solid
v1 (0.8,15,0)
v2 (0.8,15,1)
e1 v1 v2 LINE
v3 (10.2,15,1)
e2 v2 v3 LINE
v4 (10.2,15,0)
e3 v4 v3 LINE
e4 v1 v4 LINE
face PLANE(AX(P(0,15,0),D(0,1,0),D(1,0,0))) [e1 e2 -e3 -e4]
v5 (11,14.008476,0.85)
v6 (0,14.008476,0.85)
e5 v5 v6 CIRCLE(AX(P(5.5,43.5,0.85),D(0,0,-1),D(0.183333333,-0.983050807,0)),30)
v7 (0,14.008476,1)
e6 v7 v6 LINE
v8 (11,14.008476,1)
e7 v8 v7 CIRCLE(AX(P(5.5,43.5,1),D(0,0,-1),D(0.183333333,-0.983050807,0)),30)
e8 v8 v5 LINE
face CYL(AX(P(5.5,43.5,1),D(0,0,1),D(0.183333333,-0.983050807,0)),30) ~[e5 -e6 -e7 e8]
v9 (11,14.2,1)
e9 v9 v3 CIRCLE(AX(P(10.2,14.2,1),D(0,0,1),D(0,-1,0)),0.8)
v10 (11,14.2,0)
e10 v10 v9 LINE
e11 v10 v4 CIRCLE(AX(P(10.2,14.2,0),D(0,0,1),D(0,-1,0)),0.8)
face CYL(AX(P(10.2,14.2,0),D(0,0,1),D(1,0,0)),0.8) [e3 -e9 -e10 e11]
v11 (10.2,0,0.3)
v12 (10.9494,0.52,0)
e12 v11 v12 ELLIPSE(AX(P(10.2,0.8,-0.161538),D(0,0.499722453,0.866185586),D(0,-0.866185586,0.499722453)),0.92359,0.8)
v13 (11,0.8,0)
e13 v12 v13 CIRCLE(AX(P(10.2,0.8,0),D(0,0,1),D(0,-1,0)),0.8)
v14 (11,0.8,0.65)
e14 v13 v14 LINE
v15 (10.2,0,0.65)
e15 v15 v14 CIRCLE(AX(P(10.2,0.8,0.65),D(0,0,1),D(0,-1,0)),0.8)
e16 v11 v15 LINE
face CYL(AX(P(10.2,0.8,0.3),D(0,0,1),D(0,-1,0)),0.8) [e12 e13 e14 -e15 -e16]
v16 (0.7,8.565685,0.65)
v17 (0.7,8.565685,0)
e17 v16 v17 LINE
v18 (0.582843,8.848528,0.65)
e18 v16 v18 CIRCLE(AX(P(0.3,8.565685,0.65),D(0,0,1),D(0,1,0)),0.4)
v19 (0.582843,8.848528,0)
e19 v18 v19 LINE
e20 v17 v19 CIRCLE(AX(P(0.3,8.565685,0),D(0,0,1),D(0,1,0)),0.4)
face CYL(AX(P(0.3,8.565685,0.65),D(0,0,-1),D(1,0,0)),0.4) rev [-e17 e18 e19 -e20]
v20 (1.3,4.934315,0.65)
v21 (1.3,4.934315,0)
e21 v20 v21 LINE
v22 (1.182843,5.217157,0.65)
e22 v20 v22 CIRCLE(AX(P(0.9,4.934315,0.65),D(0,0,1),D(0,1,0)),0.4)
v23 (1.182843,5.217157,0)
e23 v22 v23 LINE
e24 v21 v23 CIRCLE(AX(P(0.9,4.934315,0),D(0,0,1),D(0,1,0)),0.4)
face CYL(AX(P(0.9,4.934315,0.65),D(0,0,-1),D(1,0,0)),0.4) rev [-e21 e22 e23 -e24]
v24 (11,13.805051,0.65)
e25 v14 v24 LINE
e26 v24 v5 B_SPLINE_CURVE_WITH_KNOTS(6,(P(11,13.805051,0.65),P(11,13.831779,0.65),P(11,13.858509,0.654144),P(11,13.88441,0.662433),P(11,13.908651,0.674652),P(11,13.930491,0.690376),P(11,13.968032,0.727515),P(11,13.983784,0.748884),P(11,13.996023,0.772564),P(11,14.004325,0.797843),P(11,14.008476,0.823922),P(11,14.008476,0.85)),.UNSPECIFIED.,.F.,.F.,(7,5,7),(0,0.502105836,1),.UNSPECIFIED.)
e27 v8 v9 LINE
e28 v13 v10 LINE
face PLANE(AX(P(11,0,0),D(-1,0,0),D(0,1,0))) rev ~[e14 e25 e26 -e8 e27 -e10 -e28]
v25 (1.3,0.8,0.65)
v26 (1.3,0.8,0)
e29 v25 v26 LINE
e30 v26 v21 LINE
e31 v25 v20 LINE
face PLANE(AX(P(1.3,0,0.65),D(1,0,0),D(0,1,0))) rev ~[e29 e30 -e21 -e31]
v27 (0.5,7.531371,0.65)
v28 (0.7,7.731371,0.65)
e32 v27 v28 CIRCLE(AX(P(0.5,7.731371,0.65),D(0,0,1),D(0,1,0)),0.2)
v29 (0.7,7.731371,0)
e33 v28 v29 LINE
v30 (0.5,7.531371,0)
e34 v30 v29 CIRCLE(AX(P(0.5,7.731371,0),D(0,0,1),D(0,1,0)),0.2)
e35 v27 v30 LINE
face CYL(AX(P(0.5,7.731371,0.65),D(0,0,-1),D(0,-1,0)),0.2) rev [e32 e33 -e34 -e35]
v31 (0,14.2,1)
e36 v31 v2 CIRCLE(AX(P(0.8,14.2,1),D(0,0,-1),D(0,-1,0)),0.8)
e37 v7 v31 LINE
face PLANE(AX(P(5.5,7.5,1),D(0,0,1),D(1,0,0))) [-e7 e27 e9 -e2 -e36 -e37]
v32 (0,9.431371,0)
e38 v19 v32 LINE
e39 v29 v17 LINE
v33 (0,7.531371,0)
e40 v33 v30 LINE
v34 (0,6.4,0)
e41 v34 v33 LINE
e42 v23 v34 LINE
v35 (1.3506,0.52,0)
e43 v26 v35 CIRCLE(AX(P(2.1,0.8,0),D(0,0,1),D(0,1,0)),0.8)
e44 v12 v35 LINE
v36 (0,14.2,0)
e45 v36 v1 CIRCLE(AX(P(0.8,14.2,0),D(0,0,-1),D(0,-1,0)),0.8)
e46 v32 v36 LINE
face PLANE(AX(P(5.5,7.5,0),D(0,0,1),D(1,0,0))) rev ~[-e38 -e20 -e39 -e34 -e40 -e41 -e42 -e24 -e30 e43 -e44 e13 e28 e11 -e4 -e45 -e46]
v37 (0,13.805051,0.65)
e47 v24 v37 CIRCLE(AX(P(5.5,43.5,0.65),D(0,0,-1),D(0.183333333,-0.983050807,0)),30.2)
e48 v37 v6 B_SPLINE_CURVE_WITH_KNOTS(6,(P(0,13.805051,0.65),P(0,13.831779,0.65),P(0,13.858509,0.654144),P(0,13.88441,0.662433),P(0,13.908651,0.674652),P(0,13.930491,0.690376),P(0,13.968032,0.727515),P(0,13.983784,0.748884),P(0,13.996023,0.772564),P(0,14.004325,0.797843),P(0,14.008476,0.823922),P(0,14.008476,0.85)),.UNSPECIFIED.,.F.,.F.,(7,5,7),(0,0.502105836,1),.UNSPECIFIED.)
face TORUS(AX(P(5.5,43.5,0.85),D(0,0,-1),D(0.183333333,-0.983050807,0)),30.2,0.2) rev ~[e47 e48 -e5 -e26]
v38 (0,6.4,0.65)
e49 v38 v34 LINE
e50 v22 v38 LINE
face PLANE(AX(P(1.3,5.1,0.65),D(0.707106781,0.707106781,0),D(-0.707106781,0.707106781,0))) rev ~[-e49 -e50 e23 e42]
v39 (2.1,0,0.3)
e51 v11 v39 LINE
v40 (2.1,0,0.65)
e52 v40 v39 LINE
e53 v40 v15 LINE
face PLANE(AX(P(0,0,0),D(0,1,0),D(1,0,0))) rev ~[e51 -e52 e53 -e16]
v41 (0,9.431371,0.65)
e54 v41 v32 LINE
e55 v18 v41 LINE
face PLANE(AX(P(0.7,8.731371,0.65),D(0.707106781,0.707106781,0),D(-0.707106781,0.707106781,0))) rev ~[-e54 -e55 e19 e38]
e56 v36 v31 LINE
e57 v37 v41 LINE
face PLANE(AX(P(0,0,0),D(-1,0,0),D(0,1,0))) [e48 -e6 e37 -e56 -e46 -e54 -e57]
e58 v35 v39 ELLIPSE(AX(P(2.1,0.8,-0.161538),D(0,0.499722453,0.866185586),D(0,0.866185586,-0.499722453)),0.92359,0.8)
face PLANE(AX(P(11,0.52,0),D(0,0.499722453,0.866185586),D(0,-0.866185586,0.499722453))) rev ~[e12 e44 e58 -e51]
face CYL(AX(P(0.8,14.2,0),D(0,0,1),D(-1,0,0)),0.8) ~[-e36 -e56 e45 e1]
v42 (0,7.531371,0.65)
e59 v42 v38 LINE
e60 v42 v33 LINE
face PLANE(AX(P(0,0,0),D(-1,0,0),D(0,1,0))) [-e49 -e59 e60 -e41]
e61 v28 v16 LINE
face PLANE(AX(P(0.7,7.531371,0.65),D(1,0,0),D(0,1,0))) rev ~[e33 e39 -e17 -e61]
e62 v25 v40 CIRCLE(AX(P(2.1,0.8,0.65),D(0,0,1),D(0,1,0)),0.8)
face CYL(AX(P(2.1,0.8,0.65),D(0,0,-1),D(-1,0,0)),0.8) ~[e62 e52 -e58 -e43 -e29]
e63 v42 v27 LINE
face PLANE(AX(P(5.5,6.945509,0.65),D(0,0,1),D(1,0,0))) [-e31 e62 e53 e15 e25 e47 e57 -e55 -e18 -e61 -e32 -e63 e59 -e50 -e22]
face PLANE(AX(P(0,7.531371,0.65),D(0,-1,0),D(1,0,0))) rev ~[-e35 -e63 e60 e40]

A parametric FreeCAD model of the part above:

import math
import FreeCAD as App
import Part
import Sketcher

V = App.Vector
Q = App.Units.Quantity


def edges_at(feature, points):
    """Names of the edges that pass closest to the given points."""
    edges = feature.Shape.Edges
    near = lambda p: min(range(len(edges)), key=lambda i: edges[i].distToShape(Part.Vertex(*p))[0])
    return sorted({f"Edge{near(p) + 1}" for p in points})

doc = App.newDocument("Part")
params = doc.addObject("Spreadsheet::Sheet", "Params")
for row, (alias, value) in enumerate([
    ("sketch1_width", "11 mm"),
    ("sketch1_height", "15 mm"),
    ("pad1_length", "1 mm"),
    ("sketch2_radius", "30 mm"),
    ("sketch2_width", "11 mm"),
    ("pocket1_length", "0.35 mm"),
    ("sketch3_width", "1.3 mm"),
    ("sketch3_width2", "0.7 mm"),
    ("sketch3_height", "5.1 mm"),
    ("sketch3_height2", "1.9 mm"),
    ("fillet_radius", "0.2 mm"),
    ("fillet2_radius", "0.4 mm"),
    ("fillet3_radius", "0.2 mm"),
    ("fillet4_radius", "0.4 mm"),
    ("sketch4_height", "0.3 mm"),
    ("sketch4_width", "0.52 mm"),
    ("fillet5_radius", "0.8 mm"),
], start=1):
    params.set(f"A{row}", alias)
    params.set(f"B{row}", "=" + value)
    params.setAlias(f"B{row}", alias)

body = doc.addObject("PartDesign::Body", "Body")

# Sketch on XY plane
sketch1 = doc.addObject("Sketcher::SketchObject", "Sketch")
body.addObject(sketch1)
sketch1.AttachmentSupport = (doc.XY_Plane, [""])
sketch1.MapMode = "FlatFace"
sketch1.addGeometry([
    Part.LineSegment(V(0, 15, 0), V(0, 0, 0)),
    Part.LineSegment(V(0, 0, 0), V(11, 0, 0)),
    Part.LineSegment(V(11, 0, 0), V(11, 15, 0)),
    Part.LineSegment(V(11, 15, 0), V(0, 15, 0)),
], False)
sketch1.addConstraint([
    Sketcher.Constraint("Coincident", 0, 2, 1, 1),
    Sketcher.Constraint("Coincident", 1, 2, 2, 1),
    Sketcher.Constraint("Coincident", 2, 2, 3, 1),
    Sketcher.Constraint("Coincident", 3, 2, 0, 1),
    Sketcher.Constraint("Vertical", 0),
    Sketcher.Constraint("Horizontal", 1),
    Sketcher.Constraint("Vertical", 2),
    Sketcher.Constraint("Horizontal", 3),
    Sketcher.Constraint("Coincident", 0, 2, -1, 1),
    Sketcher.Constraint("DistanceX", 1, 1, 1, 2, 11.0),
    Sketcher.Constraint("DistanceY", 0, 2, 0, 1, 15.0),
])
sketch1.setExpression("Constraints[9]", "Params.sketch1_width")
sketch1.setExpression("Constraints[10]", "Params.sketch1_height")
pad1 = doc.addObject("PartDesign::Pad", "Pad")
body.addObject(pad1)
pad1.Profile = sketch1
pad1.setExpression("Length", "Params.pad1_length")

# Sketch on XY plane
sketch2 = doc.addObject("Sketcher::SketchObject", "Sketch001")
body.addObject(sketch2)
sketch2.AttachmentSupport = (doc.XY_Plane, [""])
sketch2.MapMode = "FlatFace"
sketch2.AttachmentOffset = App.Placement(V(0, 0, 1), App.Rotation())
sketch2.addGeometry([
    Part.LineSegment(V(0, 14, 0), V(0, 0, 0)),
    Part.LineSegment(V(0, 0, 0), V(11, 0, 0)),
    Part.LineSegment(V(11, 0, 0), V(11, 14, 0)),
    Part.ArcOfCircle(Part.Circle(V(6, 43, 0), V(0, 0, 1), 30), math.radians(-101), math.radians(-79)),
], False)
sketch2.addConstraint([
    Sketcher.Constraint("Coincident", 0, 2, 1, 1),
    Sketcher.Constraint("Coincident", 1, 2, 2, 1),
    Sketcher.Constraint("Coincident", 2, 2, 3, 2),
    Sketcher.Constraint("Coincident", 3, 1, 0, 1),
    Sketcher.Constraint("Vertical", 0),
    Sketcher.Constraint("Horizontal", 1),
    Sketcher.Constraint("Vertical", 2),
    Sketcher.Constraint("Coincident", 0, 2, -1, 1),
    Sketcher.Constraint("Horizontal", 2, 2, 3, 1),
    Sketcher.Constraint("Radius", 3, 30.0),
    Sketcher.Constraint("DistanceX", 1, 1, 1, 2, 11.0),
    Sketcher.Constraint("DistanceY", -1, 1, 3, 3, 43.5),
])
sketch2.setExpression("Constraints[9]", "Params.sketch2_radius")
sketch2.setExpression("Constraints[10]", "Params.sketch2_width")
pocket1 = doc.addObject("PartDesign::Pocket", "Pocket")
body.addObject(pocket1)
pocket1.Profile = sketch2
pocket1.setExpression("Length", "Params.pocket1_length")

# Sketch on XY plane
sketch3 = doc.addObject("Sketcher::SketchObject", "Sketch002")
body.addObject(sketch3)
sketch3.AttachmentSupport = (doc.XY_Plane, [""])
sketch3.MapMode = "FlatFace"
sketch3.AttachmentOffset = App.Placement(V(0, 0, 0.65), App.Rotation())
sketch3.addGeometry([
    Part.LineSegment(V(0, 0, 0), V(1.3, 0, 0)),  # 0
    Part.LineSegment(V(1.3, 0, 0), V(1.3, 5.1, 0)),  # 1
    Part.LineSegment(V(1.3, 5.1, 0), V(0, 6.4, 0)),  # 2
    Part.LineSegment(V(0, 6.4, 0), V(0, 0, 0)),  # 3
    Part.LineSegment(V(0, 9.4, 0), V(0, 7.5, 0)),  # 4
    Part.LineSegment(V(0, 7.5, 0), V(0.7, 7.5, 0)),  # 5
    Part.LineSegment(V(0.7, 7.5, 0), V(0.7, 8.7, 0)),  # 6
    Part.LineSegment(V(0.7, 8.7, 0), V(0, 9.4, 0)),  # 7
], False)
sketch3.addConstraint([
    Sketcher.Constraint("Coincident", 0, 2, 1, 1),
    Sketcher.Constraint("Coincident", 1, 2, 2, 1),
    Sketcher.Constraint("Coincident", 2, 2, 3, 1),
    Sketcher.Constraint("Coincident", 3, 2, 0, 1),
    Sketcher.Constraint("Coincident", 4, 2, 5, 1),
    Sketcher.Constraint("Coincident", 5, 2, 6, 1),
    Sketcher.Constraint("Coincident", 6, 2, 7, 1),
    Sketcher.Constraint("Coincident", 7, 2, 4, 1),
    Sketcher.Constraint("Horizontal", 0),
    Sketcher.Constraint("Vertical", 1),
    Sketcher.Constraint("Vertical", 3),
    Sketcher.Constraint("Vertical", 4),
    Sketcher.Constraint("Horizontal", 5),
    Sketcher.Constraint("Vertical", 6),
    Sketcher.Constraint("Coincident", 3, 2, -1, 1),
    Sketcher.Constraint("PointOnObject", 4, 2, -2),
    Sketcher.Constraint("Parallel", 2, 7),
    Sketcher.Constraint("Angle", 2, Q("135 deg")),
    Sketcher.Constraint("DistanceX", 0, 1, 0, 2, 1.3),
    Sketcher.Constraint("DistanceX", 5, 1, 5, 2, 0.7),
    Sketcher.Constraint("DistanceY", 1, 1, 1, 2, 5.1),
    Sketcher.Constraint("DistanceY", 4, 2, 4, 1, 1.9),
    Sketcher.Constraint("DistanceY", -1, 1, 4, 2, 7.531371),
])
sketch3.setExpression("Constraints[18]", "Params.sketch3_width")
sketch3.setExpression("Constraints[19]", "Params.sketch3_width2")
sketch3.setExpression("Constraints[20]", "Params.sketch3_height")
sketch3.setExpression("Constraints[21]", "Params.sketch3_height2")
pocket2 = doc.addObject("PartDesign::Pocket", "Pocket001")
body.addObject(pocket2)
pocket2.Profile = sketch3
pocket2.Type = "ThroughAll"
doc.recompute()

fillet = doc.addObject("PartDesign::Fillet", "Fillet")
body.addObject(fillet)
fillet.Base = (pocket2, edges_at(pocket2, [(0.7, 7.531, 0.325)]))
fillet.setExpression("Radius", "Params.fillet_radius")
doc.recompute()

fillet2 = doc.addObject("PartDesign::Fillet", "Fillet001")
body.addObject(fillet2)
fillet2.Base = (fillet, edges_at(fillet, [(0.7, 8.731, 0.325)]))
fillet2.setExpression("Radius", "Params.fillet2_radius")
doc.recompute()

fillet3 = doc.addObject("PartDesign::Fillet", "Fillet002")
body.addObject(fillet3)
fillet3.Base = (fillet2, edges_at(fillet2, [(5.5, 13.5, 0.65)]))
fillet3.setExpression("Radius", "Params.fillet3_radius")
doc.recompute()

fillet4 = doc.addObject("PartDesign::Fillet", "Fillet003")
body.addObject(fillet4)
fillet4.Base = (fillet3, edges_at(fillet3, [(1.3, 5.1, 0.325)]))
fillet4.setExpression("Radius", "Params.fillet4_radius")

# Sketch on YZ plane
sketch4 = doc.addObject("Sketcher::SketchObject", "Sketch003")
body.addObject(sketch4)
sketch4.AttachmentSupport = (doc.YZ_Plane, [""])
sketch4.MapMode = "FlatFace"
sketch4.AttachmentOffset = App.Placement(V(0, 0, 11), App.Rotation())
sketch4.addGeometry([
    Part.LineSegment(V(0.52, 0, 0), V(0, 0.3, 0)),
    Part.LineSegment(V(0, 0.3, 0), V(0, 0, 0)),
    Part.LineSegment(V(0, 0, 0), V(0.52, 0, 0)),
], False)
sketch4.addConstraint([
    Sketcher.Constraint("Coincident", 0, 2, 1, 1),
    Sketcher.Constraint("Coincident", 1, 2, 2, 1),
    Sketcher.Constraint("Coincident", 2, 2, 0, 1),
    Sketcher.Constraint("Vertical", 1),
    Sketcher.Constraint("Horizontal", 2),
    Sketcher.Constraint("Coincident", 1, 2, -1, 1),
    Sketcher.Constraint("DistanceY", 1, 2, 1, 1, 0.3),
    Sketcher.Constraint("DistanceX", 2, 1, 2, 2, 0.52),
])
sketch4.setExpression("Constraints[6]", "Params.sketch4_height")
sketch4.setExpression("Constraints[7]", "Params.sketch4_width")
pocket3 = doc.addObject("PartDesign::Pocket", "Pocket002")
body.addObject(pocket3)
pocket3.Profile = sketch4
pocket3.Type = "ThroughAll"
doc.recompute()

fillet5 = doc.addObject("PartDesign::Fillet", "Fillet004")
body.addObject(fillet5)
fillet5.Base = (pocket3, edges_at(pocket3, [
    (11, 0, 0.475),
    (1.3, 0, 0.475),
    (0, 15, 0.5),
    (11, 15, 0.5),
]))
fillet5.setExpression("Radius", "Params.fillet5_radius")

doc.recompute()
